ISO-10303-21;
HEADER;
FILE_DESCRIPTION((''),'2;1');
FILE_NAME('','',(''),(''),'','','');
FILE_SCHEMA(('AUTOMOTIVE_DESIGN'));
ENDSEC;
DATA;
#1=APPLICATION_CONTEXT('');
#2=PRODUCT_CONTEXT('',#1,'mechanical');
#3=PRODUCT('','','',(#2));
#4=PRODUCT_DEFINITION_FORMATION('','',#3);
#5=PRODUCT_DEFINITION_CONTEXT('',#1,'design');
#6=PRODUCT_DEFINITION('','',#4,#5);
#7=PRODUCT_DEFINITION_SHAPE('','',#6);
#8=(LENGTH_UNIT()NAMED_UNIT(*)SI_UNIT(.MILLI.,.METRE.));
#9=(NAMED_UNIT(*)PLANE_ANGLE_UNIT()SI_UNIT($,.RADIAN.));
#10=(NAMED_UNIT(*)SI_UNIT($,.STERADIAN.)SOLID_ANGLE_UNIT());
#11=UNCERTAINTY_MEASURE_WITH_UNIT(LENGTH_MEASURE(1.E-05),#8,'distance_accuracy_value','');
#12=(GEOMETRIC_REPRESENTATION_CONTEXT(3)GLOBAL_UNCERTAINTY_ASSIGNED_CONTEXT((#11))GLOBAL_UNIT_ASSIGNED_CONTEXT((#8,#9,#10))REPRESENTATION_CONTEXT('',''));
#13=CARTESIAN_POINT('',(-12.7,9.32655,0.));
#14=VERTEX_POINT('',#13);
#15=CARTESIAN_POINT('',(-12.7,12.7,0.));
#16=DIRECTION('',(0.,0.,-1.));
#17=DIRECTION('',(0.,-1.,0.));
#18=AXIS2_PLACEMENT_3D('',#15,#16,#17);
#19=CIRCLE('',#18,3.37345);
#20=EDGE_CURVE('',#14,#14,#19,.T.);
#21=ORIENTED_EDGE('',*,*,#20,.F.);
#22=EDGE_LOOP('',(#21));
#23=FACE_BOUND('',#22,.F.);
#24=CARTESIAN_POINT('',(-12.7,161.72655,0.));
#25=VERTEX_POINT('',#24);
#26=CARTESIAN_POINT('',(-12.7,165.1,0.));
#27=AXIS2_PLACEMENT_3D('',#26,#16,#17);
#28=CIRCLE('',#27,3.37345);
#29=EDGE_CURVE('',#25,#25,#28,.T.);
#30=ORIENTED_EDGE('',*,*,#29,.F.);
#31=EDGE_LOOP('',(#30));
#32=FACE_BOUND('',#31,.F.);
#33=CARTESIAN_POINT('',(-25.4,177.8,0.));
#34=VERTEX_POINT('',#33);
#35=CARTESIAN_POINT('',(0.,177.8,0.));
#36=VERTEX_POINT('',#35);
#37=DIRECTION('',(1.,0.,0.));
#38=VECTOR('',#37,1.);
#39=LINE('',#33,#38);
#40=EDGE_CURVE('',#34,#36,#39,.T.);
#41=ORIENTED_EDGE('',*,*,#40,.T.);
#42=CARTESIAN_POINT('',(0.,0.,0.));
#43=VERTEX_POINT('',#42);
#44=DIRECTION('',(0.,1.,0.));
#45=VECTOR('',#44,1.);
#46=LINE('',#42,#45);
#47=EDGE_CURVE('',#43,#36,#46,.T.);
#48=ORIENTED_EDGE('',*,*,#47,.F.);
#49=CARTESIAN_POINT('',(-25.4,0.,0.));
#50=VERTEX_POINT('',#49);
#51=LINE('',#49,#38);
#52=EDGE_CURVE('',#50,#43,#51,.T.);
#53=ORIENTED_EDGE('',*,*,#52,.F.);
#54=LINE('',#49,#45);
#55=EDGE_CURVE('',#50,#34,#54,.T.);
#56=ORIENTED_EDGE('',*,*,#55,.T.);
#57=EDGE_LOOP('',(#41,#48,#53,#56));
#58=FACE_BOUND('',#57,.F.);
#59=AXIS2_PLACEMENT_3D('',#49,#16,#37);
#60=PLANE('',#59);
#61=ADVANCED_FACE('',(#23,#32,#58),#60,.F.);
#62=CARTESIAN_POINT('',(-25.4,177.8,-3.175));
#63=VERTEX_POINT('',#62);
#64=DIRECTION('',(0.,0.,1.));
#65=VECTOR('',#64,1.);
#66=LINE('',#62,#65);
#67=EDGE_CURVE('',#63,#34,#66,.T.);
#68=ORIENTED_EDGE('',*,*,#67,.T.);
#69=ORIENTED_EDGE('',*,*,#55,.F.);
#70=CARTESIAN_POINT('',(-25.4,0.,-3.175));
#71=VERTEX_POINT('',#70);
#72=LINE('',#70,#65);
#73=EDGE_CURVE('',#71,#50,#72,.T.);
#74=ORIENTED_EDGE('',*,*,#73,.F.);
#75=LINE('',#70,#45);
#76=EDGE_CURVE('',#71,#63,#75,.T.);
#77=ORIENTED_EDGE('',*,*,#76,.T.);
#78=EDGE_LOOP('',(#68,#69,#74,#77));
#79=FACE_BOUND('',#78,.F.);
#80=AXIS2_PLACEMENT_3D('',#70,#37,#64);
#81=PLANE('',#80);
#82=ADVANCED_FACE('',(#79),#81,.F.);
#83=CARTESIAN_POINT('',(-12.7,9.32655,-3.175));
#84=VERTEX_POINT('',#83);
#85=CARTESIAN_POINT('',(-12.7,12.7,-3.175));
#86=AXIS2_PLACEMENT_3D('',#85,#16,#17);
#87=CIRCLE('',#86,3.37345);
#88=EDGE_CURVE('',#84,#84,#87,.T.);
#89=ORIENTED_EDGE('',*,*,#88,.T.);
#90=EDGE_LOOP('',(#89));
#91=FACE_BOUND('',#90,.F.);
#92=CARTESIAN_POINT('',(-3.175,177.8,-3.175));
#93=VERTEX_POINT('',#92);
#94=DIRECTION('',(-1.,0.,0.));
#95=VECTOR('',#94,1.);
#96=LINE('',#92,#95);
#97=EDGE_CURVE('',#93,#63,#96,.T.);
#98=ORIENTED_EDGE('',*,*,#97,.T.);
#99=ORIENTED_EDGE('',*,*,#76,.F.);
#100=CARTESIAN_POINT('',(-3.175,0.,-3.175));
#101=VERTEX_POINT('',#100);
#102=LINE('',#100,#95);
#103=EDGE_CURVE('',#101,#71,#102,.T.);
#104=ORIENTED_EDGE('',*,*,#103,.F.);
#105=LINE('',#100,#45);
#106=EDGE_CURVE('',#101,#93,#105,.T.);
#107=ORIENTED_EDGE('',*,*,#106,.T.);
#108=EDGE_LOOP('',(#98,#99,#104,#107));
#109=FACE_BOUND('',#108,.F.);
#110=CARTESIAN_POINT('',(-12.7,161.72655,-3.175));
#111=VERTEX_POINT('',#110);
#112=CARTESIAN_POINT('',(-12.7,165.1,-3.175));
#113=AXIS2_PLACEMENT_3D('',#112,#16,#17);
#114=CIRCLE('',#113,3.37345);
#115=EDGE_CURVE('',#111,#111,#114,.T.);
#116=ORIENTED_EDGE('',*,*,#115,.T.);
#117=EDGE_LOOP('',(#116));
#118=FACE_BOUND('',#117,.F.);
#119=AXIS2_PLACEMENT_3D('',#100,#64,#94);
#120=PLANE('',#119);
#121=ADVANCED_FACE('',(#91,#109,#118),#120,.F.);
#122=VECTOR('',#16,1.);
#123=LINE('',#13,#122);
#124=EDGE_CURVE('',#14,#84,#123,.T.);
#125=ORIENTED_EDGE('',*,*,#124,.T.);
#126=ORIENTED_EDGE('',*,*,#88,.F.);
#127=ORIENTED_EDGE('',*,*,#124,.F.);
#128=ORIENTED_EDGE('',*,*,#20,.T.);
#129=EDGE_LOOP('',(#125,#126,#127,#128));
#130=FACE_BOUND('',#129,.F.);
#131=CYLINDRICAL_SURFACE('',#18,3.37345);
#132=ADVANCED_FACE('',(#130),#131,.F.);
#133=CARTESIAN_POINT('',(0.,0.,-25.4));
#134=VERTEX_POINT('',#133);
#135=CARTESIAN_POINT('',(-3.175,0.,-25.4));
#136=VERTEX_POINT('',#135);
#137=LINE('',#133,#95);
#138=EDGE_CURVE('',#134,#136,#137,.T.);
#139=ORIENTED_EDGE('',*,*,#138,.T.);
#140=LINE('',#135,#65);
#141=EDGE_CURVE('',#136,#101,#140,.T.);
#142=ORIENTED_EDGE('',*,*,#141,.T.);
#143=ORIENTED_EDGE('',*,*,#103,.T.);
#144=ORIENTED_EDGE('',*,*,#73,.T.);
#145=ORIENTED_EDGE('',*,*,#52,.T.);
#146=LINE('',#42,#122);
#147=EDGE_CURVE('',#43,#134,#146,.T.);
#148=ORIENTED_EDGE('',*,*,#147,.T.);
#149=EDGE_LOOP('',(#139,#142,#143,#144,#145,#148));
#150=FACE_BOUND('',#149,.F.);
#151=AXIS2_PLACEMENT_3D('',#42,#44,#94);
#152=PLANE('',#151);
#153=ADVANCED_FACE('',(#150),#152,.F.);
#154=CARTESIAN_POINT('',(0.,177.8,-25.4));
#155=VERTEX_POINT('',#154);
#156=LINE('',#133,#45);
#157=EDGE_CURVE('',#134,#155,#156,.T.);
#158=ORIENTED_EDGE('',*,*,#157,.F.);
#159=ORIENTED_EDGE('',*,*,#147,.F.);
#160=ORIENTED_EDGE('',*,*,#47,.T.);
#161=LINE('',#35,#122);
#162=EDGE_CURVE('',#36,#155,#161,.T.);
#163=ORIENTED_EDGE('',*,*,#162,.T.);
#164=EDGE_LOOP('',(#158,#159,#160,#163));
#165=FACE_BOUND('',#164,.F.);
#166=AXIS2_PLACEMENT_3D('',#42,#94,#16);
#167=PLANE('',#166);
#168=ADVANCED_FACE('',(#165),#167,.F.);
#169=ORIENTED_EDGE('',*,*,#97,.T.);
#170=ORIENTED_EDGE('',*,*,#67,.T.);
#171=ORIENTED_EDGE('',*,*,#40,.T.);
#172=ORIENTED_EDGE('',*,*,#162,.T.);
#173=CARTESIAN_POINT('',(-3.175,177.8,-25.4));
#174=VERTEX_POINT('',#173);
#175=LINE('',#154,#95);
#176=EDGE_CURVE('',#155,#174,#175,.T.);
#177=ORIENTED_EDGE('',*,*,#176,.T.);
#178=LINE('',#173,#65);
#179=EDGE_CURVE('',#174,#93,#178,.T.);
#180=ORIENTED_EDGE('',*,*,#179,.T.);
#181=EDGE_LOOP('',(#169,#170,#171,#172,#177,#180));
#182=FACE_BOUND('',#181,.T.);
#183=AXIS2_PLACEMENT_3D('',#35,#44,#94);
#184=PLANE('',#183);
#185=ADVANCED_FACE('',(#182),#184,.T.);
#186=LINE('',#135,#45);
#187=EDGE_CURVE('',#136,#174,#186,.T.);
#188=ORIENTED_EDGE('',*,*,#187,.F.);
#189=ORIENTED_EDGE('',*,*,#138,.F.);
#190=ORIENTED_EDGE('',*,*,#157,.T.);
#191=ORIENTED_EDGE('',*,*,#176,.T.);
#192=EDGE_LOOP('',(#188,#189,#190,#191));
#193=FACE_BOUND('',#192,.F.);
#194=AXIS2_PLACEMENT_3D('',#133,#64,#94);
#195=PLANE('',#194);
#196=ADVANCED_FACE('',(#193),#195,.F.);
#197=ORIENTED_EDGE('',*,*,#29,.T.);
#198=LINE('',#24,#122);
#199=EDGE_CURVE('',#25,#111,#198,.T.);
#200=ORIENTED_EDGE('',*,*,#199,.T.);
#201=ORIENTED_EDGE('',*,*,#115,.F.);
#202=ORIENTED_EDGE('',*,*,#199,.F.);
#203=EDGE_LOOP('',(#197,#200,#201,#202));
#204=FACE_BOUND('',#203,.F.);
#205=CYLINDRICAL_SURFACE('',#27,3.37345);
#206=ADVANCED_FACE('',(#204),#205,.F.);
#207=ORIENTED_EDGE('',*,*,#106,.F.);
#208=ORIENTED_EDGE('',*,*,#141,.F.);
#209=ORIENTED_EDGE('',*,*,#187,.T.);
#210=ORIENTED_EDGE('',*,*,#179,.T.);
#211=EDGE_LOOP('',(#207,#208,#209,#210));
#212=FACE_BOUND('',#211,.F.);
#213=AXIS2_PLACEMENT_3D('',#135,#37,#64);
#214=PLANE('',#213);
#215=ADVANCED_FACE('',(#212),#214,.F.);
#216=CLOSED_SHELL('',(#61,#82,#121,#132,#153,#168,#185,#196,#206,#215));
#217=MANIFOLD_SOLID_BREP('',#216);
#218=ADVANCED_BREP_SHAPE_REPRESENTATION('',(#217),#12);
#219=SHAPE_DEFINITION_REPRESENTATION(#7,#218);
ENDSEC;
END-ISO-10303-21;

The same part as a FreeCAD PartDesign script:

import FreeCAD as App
import Part
import Sketcher

V = App.Vector
Q = App.Units.Quantity

doc = App.newDocument("Part")
params = doc.addObject("Spreadsheet::Sheet", "Params")
for row, (alias, value) in enumerate([
    ("sketch1_width", "1 in"),
    ("sketch1_width2", "0.125 in"),
    ("pad1_length", "7 in"),
    ("sketch2_diameter", "0.2656299 in"),
    ("hole_diameter", "0.265626 in"),
], start=1):
    params.set(f"A{row}", alias)
    params.set(f"B{row}", "=" + value)
    params.setAlias(f"B{row}", alias)

body = doc.addObject("PartDesign::Body", "Body")

# Sketch on XZ plane
sketch1 = body.newObject("Sketcher::SketchObject", "Sketch")
sketch1.AttachmentSupport = (doc.getObject("XZ_Plane"), [""])
sketch1.MapMode = "FlatFace"
sketch1.addGeometry(Part.LineSegment(V(-25.4, 0, 0), V(0, 0, 0)), False)
sketch1.addGeometry(Part.LineSegment(V(0, 0, 0), V(0, -25.4, 0)), False)
sketch1.addGeometry(Part.LineSegment(V(0, -25.4, 0), V(-3.2, -25.4, 0)), False)
sketch1.addGeometry(Part.LineSegment(V(-3.2, -25.4, 0), V(-3.2, -3.2, 0)), False)
sketch1.addGeometry(Part.LineSegment(V(-3.2, -3.2, 0), V(-25.4, -3.2, 0)), False)
sketch1.addGeometry(Part.LineSegment(V(-25.4, -3.2, 0), V(-25.4, 0, 0)), False)
sketch1.addConstraint(Sketcher.Constraint("Coincident", 0, 2, 1, 1))
sketch1.addConstraint(Sketcher.Constraint("Coincident", 1, 2, 2, 1))
sketch1.addConstraint(Sketcher.Constraint("Coincident", 2, 2, 3, 1))
sketch1.addConstraint(Sketcher.Constraint("Coincident", 3, 2, 4, 1))
sketch1.addConstraint(Sketcher.Constraint("Coincident", 4, 2, 5, 1))
sketch1.addConstraint(Sketcher.Constraint("Coincident", 5, 2, 0, 1))
sketch1.addConstraint(Sketcher.Constraint("Horizontal", 0))
sketch1.addConstraint(Sketcher.Constraint("Vertical", 1))
sketch1.addConstraint(Sketcher.Constraint("Horizontal", 2))
sketch1.addConstraint(Sketcher.Constraint("Vertical", 3))
sketch1.addConstraint(Sketcher.Constraint("Horizontal", 4))
sketch1.addConstraint(Sketcher.Constraint("Vertical", 5))
sketch1.addConstraint(Sketcher.Constraint("Coincident", 0, 2, -1, 1))
sketch1.addConstraint(Sketcher.Constraint("Equal", 0, 1))
sketch1.addConstraint(Sketcher.Constraint("Equal", 4, 3))
sketch1.addConstraint(Sketcher.Constraint("DistanceX", 0, 1, 0, 2, Q("1 in")))
sketch1.addConstraint(Sketcher.Constraint("DistanceX", 2, 2, 2, 1, Q("0.125 in")))
sketch1.setExpression("Constraints[15]", "Params.sketch1_width")
sketch1.setExpression("Constraints[16]", "Params.sketch1_width2")
pad1 = body.newObject("PartDesign::Pad", "Pad")
pad1.Profile = sketch1
pad1.setExpression("Length", "Params.pad1_length")
pad1.Reversed = True

# Sketch on XY plane
sketch2 = body.newObject("Sketcher::SketchObject", "Sketch001")
sketch2.AttachmentSupport = (doc.getObject("XY_Plane"), [""])
sketch2.MapMode = "FlatFace"
sketch2.addGeometry(Part.Circle(V(-12.7, 165.1, 0), V(0, 0, 1), 3.4), False)
sketch2.addGeometry(Part.Circle(V(-12.7, 12.7, 0), V(0, 0, 1), 3.4), False)
sketch2.addConstraint(Sketcher.Constraint("Equal", 0, 1))
sketch2.addConstraint(Sketcher.Constraint("Vertical", 0, 3, 1, 3))
sketch2.addConstraint(Sketcher.Constraint("Diameter", 0, Q("0.2656299 in")))
sketch2.addConstraint(Sketcher.Constraint("DistanceY", 1, 3, 0, 3, Q("6 in")))
sketch2.addConstraint(Sketcher.Constraint("DistanceX", 0, 3, -1, 1, Q("0.5 in")))
sketch2.addConstraint(Sketcher.Constraint("DistanceY", -1, 1, 0, 3, Q("6.5 in")))
sketch2.setExpression("Constraints[2]", "Params.sketch2_diameter")
doc.recompute()
hole = body.newObject("PartDesign::Hole", "Hole")
hole.Profile = sketch2
hole.ThreadType = "None"
hole.setExpression("Diameter", "Params.hole_diameter")
hole.DepthType = "ThroughAll"

doc.recompute()
